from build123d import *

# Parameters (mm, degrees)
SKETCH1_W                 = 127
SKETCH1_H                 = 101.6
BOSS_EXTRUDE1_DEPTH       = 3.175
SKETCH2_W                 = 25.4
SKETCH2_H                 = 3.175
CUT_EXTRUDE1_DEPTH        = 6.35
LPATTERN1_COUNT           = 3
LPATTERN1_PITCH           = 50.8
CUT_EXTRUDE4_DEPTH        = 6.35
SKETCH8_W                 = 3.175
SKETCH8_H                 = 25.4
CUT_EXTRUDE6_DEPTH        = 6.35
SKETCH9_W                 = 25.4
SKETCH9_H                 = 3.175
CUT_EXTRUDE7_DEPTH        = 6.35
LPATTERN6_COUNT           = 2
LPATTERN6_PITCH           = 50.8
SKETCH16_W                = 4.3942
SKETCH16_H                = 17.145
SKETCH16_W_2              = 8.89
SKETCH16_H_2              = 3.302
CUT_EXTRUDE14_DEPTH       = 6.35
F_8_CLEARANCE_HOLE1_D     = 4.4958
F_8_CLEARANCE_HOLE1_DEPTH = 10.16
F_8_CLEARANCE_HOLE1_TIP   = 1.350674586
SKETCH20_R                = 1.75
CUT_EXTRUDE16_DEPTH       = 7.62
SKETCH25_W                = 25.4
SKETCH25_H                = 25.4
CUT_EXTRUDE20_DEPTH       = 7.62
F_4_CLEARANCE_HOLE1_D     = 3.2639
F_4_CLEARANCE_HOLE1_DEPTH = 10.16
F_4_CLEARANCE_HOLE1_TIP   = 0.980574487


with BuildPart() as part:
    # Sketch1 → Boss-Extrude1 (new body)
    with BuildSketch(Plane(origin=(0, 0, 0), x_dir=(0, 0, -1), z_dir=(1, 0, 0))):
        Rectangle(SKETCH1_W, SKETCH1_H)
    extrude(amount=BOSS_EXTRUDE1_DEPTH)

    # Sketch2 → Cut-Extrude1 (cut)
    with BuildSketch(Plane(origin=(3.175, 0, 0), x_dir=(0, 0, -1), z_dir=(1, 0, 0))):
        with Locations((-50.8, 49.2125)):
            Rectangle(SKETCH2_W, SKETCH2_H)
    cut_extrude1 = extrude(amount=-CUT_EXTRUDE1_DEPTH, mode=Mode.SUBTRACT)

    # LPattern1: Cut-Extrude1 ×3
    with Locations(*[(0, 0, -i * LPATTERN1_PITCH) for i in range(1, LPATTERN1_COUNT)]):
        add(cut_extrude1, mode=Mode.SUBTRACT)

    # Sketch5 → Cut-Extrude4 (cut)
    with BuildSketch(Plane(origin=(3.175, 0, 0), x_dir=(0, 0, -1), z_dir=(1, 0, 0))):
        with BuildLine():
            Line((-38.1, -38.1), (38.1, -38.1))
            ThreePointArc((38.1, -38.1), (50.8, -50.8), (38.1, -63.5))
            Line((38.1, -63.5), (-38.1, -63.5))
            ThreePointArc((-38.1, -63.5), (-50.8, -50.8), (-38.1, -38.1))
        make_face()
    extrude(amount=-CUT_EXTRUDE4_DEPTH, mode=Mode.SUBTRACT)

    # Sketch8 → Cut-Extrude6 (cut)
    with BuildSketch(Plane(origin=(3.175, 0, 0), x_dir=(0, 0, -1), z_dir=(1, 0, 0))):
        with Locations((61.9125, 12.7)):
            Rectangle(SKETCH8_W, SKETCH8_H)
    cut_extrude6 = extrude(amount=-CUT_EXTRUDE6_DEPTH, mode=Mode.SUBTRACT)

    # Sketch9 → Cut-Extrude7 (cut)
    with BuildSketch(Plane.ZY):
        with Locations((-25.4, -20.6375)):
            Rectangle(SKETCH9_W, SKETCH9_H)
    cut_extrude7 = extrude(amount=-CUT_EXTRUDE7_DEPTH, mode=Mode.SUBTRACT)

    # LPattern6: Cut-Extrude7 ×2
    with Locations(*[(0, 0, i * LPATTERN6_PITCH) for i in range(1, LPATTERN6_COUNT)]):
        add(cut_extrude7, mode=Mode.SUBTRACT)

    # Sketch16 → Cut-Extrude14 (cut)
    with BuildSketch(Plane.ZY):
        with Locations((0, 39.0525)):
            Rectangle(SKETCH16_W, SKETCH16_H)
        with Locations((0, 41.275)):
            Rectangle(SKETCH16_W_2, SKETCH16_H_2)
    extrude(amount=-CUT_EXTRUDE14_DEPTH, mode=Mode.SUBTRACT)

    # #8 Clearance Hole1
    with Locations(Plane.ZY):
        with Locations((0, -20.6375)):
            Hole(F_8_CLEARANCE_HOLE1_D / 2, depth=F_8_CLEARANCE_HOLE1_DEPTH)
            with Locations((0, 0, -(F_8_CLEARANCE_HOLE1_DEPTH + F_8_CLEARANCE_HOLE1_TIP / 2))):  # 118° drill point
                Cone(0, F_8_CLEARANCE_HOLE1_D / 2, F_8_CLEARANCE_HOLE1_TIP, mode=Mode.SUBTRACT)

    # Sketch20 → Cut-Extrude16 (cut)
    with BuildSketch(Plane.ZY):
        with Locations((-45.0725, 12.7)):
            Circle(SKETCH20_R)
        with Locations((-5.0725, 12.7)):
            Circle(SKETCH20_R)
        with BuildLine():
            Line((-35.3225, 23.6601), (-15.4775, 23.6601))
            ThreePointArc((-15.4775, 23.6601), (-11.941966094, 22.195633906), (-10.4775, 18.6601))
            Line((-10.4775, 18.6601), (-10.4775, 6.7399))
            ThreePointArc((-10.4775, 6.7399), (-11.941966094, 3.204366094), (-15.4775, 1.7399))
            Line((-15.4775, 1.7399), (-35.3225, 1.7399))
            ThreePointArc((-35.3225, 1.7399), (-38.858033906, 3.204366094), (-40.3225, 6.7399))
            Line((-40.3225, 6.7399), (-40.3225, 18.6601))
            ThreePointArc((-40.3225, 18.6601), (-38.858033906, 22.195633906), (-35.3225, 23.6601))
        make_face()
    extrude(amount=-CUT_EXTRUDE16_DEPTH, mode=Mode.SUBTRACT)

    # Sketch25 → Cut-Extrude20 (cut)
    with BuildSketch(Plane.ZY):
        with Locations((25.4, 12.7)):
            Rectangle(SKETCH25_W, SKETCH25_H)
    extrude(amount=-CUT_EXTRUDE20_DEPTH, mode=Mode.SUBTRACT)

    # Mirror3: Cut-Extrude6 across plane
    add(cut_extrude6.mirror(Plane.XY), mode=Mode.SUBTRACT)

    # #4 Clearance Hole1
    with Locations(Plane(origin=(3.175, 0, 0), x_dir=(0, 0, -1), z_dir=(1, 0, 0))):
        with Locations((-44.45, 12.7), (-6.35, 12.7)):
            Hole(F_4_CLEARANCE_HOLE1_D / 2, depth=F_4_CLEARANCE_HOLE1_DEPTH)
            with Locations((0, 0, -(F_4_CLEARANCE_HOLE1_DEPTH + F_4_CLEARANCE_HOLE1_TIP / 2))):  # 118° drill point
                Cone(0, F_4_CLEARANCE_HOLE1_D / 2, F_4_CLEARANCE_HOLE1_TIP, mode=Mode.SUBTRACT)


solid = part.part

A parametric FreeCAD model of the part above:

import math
import FreeCAD as App
import Part
import Sketcher

V = App.Vector
Q = App.Units.Quantity

doc = App.newDocument("Part")
body = doc.addObject("PartDesign::Body", "Body")

sketch1 = doc.addObject("Sketcher::SketchObject", "Sketch")
body.addObject(sketch1)
sketch1.AttachmentSupport = (doc.YZ_Plane, [""])
sketch1.MapMode = "FlatFace"
sketch1.addGeometry(Part.LineSegment(V(51, 64, 0), V(-51, 64, 0)), False)
sketch1.addGeometry(Part.LineSegment(V(-51, 64, 0), V(-51, -64, 0)), False)
sketch1.addGeometry(Part.LineSegment(V(-51, -64, 0), V(51, -64, 0)), False)
sketch1.addGeometry(Part.LineSegment(V(51, -64, 0), V(51, 64, 0)), False)
sketch1.addConstraint(Sketcher.Constraint("Coincident", 0, 2, 1, 1))
sketch1.addConstraint(Sketcher.Constraint("Coincident", 1, 2, 2, 1))
sketch1.addConstraint(Sketcher.Constraint("Coincident", 2, 2, 3, 1))
sketch1.addConstraint(Sketcher.Constraint("Coincident", 3, 2, 0, 1))
sketch1.addConstraint(Sketcher.Constraint("Horizontal", 0))
sketch1.addConstraint(Sketcher.Constraint("Vertical", 1))
sketch1.addConstraint(Sketcher.Constraint("Horizontal", 2))
sketch1.addConstraint(Sketcher.Constraint("Vertical", 3))
sketch1.addConstraint(Sketcher.Constraint("Symmetric", 0, 2, 2, 2, -1, 1))
sketch1.addConstraint(Sketcher.Constraint("DistanceX", 0, 2, 0, 1, Q("4 in")))
sketch1.addConstraint(Sketcher.Constraint("DistanceY", 1, 2, 1, 1, Q("5 in")))
pad1 = doc.addObject("PartDesign::Pad", "Pad")
body.addObject(pad1)
pad1.Profile = sketch1
pad1.Length = Q("0.125 in")

sketch2 = doc.addObject("Sketcher::SketchObject", "Sketch001")
body.addObject(sketch2)
sketch2.AttachmentSupport = (doc.YZ_Plane, [""])
sketch2.MapMode = "FlatFace"
sketch2.AttachmentOffset = App.Placement(V(0, 0, 0.125 * 25.4), App.Rotation())
sketch2.addGeometry(Part.LineSegment(V(50.8, 63.5, 0), V(47.6, 63.5, 0)), False)
sketch2.addGeometry(Part.LineSegment(V(47.6, 63.5, 0), V(47.6, 38.1, 0)), False)
sketch2.addGeometry(Part.LineSegment(V(47.6, 38.1, 0), V(50.8, 38.1, 0)), False)
sketch2.addGeometry(Part.LineSegment(V(50.8, 38.1, 0), V(50.8, 63.5, 0)), False)
sketch2.addConstraint(Sketcher.Constraint("Coincident", 0, 2, 1, 1))
sketch2.addConstraint(Sketcher.Constraint("Coincident", 1, 2, 2, 1))
sketch2.addConstraint(Sketcher.Constraint("Coincident", 2, 2, 3, 1))
sketch2.addConstraint(Sketcher.Constraint("Coincident", 3, 2, 0, 1))
sketch2.addConstraint(Sketcher.Constraint("Horizontal", 0))
sketch2.addConstraint(Sketcher.Constraint("Vertical", 1))
sketch2.addConstraint(Sketcher.Constraint("Horizontal", 2))
sketch2.addConstraint(Sketcher.Constraint("Vertical", 3))
sketch2.addConstraint(Sketcher.Constraint("DistanceY", 1, 2, 1, 1, Q("1 in")))
sketch2.addConstraint(Sketcher.Constraint("DistanceX", -1, 1, 2, 2, Q("2 in")))
sketch2.addConstraint(Sketcher.Constraint("DistanceY", -1, 1, 0, 2, Q("2.5 in")))
sketch2.addConstraint(Sketcher.Constraint("DistanceX", 0, 2, 0, 1, Q("0.125 in")))
pocket1 = doc.addObject("PartDesign::Pocket", "Pocket")
body.addObject(pocket1)
pocket1.Profile = sketch2
pocket1.Length = Q("0.25 in")
doc.recompute()

linearpattern = doc.addObject("PartDesign::LinearPattern", "LinearPattern")
body.addObject(linearpattern)
linearpattern.Originals = [pocket1]
linearpattern.Direction = (doc.Z_Axis, [""])
linearpattern.Mode = "offset"
linearpattern.Offset = Q("2 in")
linearpattern.Occurrences = 3
linearpattern.Reversed = True
body.Tip = linearpattern

sketch3 = doc.addObject("Sketcher::SketchObject", "Sketch002")
body.addObject(sketch3)
sketch3.AttachmentSupport = (doc.YZ_Plane, [""])
sketch3.MapMode = "FlatFace"
sketch3.AttachmentOffset = App.Placement(V(0, 0, 0.125 * 25.4), App.Rotation())
sketch3.addGeometry(Part.LineSegment(V(-38, -38, 0), V(-38, 38, 0)), False)
sketch3.addGeometry(Part.ArcOfCircle(Part.Circle(V(-51, 38, 0), V(0, 0, 1), 13), math.radians(0), math.radians(180)), False)
sketch3.addGeometry(Part.LineSegment(V(-64, 38, 0), V(-64, -38, 0)), False)
sketch3.addGeometry(Part.ArcOfCircle(Part.Circle(V(-51, -38, 0), V(0, 0, 1), 13), math.radians(180), math.radians(360)), False)
sketch3.addConstraint(Sketcher.Constraint("Tangent", 0, 2, 1, 1))
sketch3.addConstraint(Sketcher.Constraint("Tangent", 1, 2, 2, 1))
sketch3.addConstraint(Sketcher.Constraint("Tangent", 2, 2, 3, 1))
sketch3.addConstraint(Sketcher.Constraint("Tangent", 3, 2, 0, 1))
sketch3.addConstraint(Sketcher.Constraint("Vertical", 0))
sketch3.addConstraint(Sketcher.Constraint("Vertical", 2))
sketch3.addConstraint(Sketcher.Constraint("Radius", 1, Q("0.5 in")))
sketch3.addConstraint(Sketcher.Constraint("DistanceY", 0, 1, 0, 2, Q("3 in")))
sketch3.addConstraint(Sketcher.Constraint("DistanceX", 1, 3, -1, 1, Q("2 in")))
sketch3.addConstraint(Sketcher.Constraint("DistanceY", -1, 1, 1, 3, Q("1.5 in")))
pocket2 = doc.addObject("PartDesign::Pocket", "Pocket001")
body.addObject(pocket2)
pocket2.Profile = sketch3
pocket2.Length = Q("0.25 in")

sketch4 = doc.addObject("Sketcher::SketchObject", "Sketch003")
body.addObject(sketch4)
sketch4.AttachmentSupport = (doc.YZ_Plane, [""])
sketch4.MapMode = "FlatFace"
sketch4.AttachmentOffset = App.Placement(V(0, 0, 0.125 * 25.4), App.Rotation())
sketch4.addGeometry(Part.LineSegment(V(25.4, -60.3, 0), V(0, -60.3, 0)), False)
sketch4.addGeometry(Part.LineSegment(V(0, -60.3, 0), V(0, -63.5, 0)), False)
sketch4.addGeometry(Part.LineSegment(V(0, -63.5, 0), V(25.4, -63.5, 0)), False)
sketch4.addGeometry(Part.LineSegment(V(25.4, -63.5, 0), V(25.4, -60.3, 0)), False)
sketch4.addConstraint(Sketcher.Constraint("Coincident", 0, 2, 1, 1))
sketch4.addConstraint(Sketcher.Constraint("Coincident", 1, 2, 2, 1))
sketch4.addConstraint(Sketcher.Constraint("Coincident", 2, 2, 3, 1))
sketch4.addConstraint(Sketcher.Constraint("Coincident", 3, 2, 0, 1))
sketch4.addConstraint(Sketcher.Constraint("Horizontal", 0))
sketch4.addConstraint(Sketcher.Constraint("Vertical", 1))
sketch4.addConstraint(Sketcher.Constraint("Horizontal", 2))
sketch4.addConstraint(Sketcher.Constraint("Vertical", 3))
sketch4.addConstraint(Sketcher.Constraint("PointOnObject", 0, 2, -2))
sketch4.addConstraint(Sketcher.Constraint("DistanceX", 0, 2, 0, 1, Q("1 in")))
sketch4.addConstraint(Sketcher.Constraint("DistanceY", 1, 2, -1, 1, Q("2.5 in")))
sketch4.addConstraint(Sketcher.Constraint("DistanceY", 1, 2, 1, 1, Q("0.125 in")))
pocket3 = doc.addObject("PartDesign::Pocket", "Pocket002")
body.addObject(pocket3)
pocket3.Profile = sketch4
pocket3.Length = Q("0.25 in")

sketch5 = doc.addObject("Sketcher::SketchObject", "Sketch004")
body.addObject(sketch5)
sketch5.AttachmentSupport = (doc.YZ_Plane, [""])
sketch5.MapMode = "FlatFace"
sketch5.addGeometry(Part.LineSegment(V(-19.1, -38.1, 0), V(-22.2, -38.1, 0)), False)
sketch5.addGeometry(Part.LineSegment(V(-22.2, -38.1, 0), V(-22.2, -12.7, 0)), False)
sketch5.addGeometry(Part.LineSegment(V(-22.2, -12.7, 0), V(-19.1, -12.7, 0)), False)
sketch5.addGeometry(Part.LineSegment(V(-19.1, -12.7, 0), V(-19.1, -38.1, 0)), False)
sketch5.addConstraint(Sketcher.Constraint("Coincident", 0, 2, 1, 1))
sketch5.addConstraint(Sketcher.Constraint("Coincident", 1, 2, 2, 1))
sketch5.addConstraint(Sketcher.Constraint("Coincident", 2, 2, 3, 1))
sketch5.addConstraint(Sketcher.Constraint("Coincident", 3, 2, 0, 1))
sketch5.addConstraint(Sketcher.Constraint("Horizontal", 0))
sketch5.addConstraint(Sketcher.Constraint("Vertical", 1))
sketch5.addConstraint(Sketcher.Constraint("Horizontal", 2))
sketch5.addConstraint(Sketcher.Constraint("Vertical", 3))
sketch5.addConstraint(Sketcher.Constraint("DistanceY", 1, 1, 1, 2, Q("1 in")))
sketch5.addConstraint(Sketcher.Constraint("DistanceY", 0, 2, -1, 1, Q("1.5 in")))
sketch5.addConstraint(Sketcher.Constraint("DistanceX", 0, 2, 0, 1, Q("0.125 in")))
sketch5.addConstraint(Sketcher.Constraint("DistanceX", 2, 2, -1, 1, Q("0.75 in")))
pocket4 = doc.addObject("PartDesign::Pocket", "Pocket003")
body.addObject(pocket4)
pocket4.Profile = sketch5
pocket4.Length = Q("0.25 in")
pocket4.Reversed = True
doc.recompute()

linearpattern2 = doc.addObject("PartDesign::LinearPattern", "LinearPattern001")
body.addObject(linearpattern2)
linearpattern2.Originals = [pocket4]
linearpattern2.Direction = (doc.Z_Axis, [""])
linearpattern2.Mode = "offset"
linearpattern2.Offset = Q("2 in")
linearpattern2.Occurrences = 2
body.Tip = linearpattern2

sketch6 = doc.addObject("Sketcher::SketchObject", "Sketch005")
body.addObject(sketch6)
sketch6.AttachmentSupport = (doc.YZ_Plane, [""])
sketch6.MapMode = "FlatFace"
sketch6.addGeometry(Part.LineSegment(V(39.6, -2.2, 0), V(30.5, -2.2, 0)), False)
sketch6.addGeometry(Part.LineSegment(V(30.5, -2.2, 0), V(30.5, 2.2, 0)), False)
sketch6.addGeometry(Part.LineSegment(V(30.5, 2.2, 0), V(39.6, 2.2, 0)), False)
sketch6.addGeometry(Part.LineSegment(V(39.6, 2.2, 0), V(39.6, 4.4, 0)), False)
sketch6.addGeometry(Part.LineSegment(V(39.6, 4.4, 0), V(42.9, 4.4, 0)), False)
sketch6.addGeometry(Part.LineSegment(V(42.9, 4.4, 0), V(42.9, 2.2, 0)), False)
sketch6.addGeometry(Part.LineSegment(V(42.9, 2.2, 0), V(47.6, 2.2, 0)), False)
sketch6.addGeometry(Part.LineSegment(V(47.6, 2.2, 0), V(47.6, -2.2, 0)), False)
sketch6.addGeometry(Part.LineSegment(V(47.6, -2.2, 0), V(42.9, -2.2, 0)), False)
sketch6.addGeometry(Part.LineSegment(V(42.9, -2.2, 0), V(42.9, -4.4, 0)), False)
sketch6.addGeometry(Part.LineSegment(V(42.9, -4.4, 0), V(39.6, -4.4, 0)), False)
sketch6.addGeometry(Part.LineSegment(V(39.6, -4.4, 0), V(39.6, -2.2, 0)), False)
sketch6.addConstraint(Sketcher.Constraint("Coincident", 0, 2, 1, 1))
sketch6.addConstraint(Sketcher.Constraint("Coincident", 1, 2, 2, 1))
sketch6.addConstraint(Sketcher.Constraint("Coincident", 2, 2, 3, 1))
sketch6.addConstraint(Sketcher.Constraint("Coincident", 3, 2, 4, 1))
sketch6.addConstraint(Sketcher.Constraint("Coincident", 4, 2, 5, 1))
sketch6.addConstraint(Sketcher.Constraint("Coincident", 5, 2, 6, 1))
sketch6.addConstraint(Sketcher.Constraint("Coincident", 6, 2, 7, 1))
sketch6.addConstraint(Sketcher.Constraint("Coincident", 7, 2, 8, 1))
sketch6.addConstraint(Sketcher.Constraint("Coincident", 8, 2, 9, 1))
sketch6.addConstraint(Sketcher.Constraint("Coincident", 9, 2, 10, 1))
sketch6.addConstraint(Sketcher.Constraint("Coincident", 10, 2, 11, 1))
sketch6.addConstraint(Sketcher.Constraint("Coincident", 11, 2, 0, 1))
sketch6.addConstraint(Sketcher.Constraint("Horizontal", 0))
sketch6.addConstraint(Sketcher.Constraint("Vertical", 1))
sketch6.addConstraint(Sketcher.Constraint("Horizontal", 2))
sketch6.addConstraint(Sketcher.Constraint("Vertical", 3))
sketch6.addConstraint(Sketcher.Constraint("Horizontal", 4))
sketch6.addConstraint(Sketcher.Constraint("Vertical", 5))
sketch6.addConstraint(Sketcher.Constraint("Horizontal", 6))
sketch6.addConstraint(Sketcher.Constraint("Vertical", 7))
sketch6.addConstraint(Sketcher.Constraint("Horizontal", 8))
sketch6.addConstraint(Sketcher.Constraint("Vertical", 9))
sketch6.addConstraint(Sketcher.Constraint("Horizontal", 10))
sketch6.addConstraint(Sketcher.Constraint("Vertical", 11))
sketch6.addConstraint(Sketcher.Constraint("Symmetric", 5, 2, 8, 2, -1))
sketch6.addConstraint(Sketcher.Constraint("Symmetric", 3, 2, 10, 2, -1))
sketch6.addConstraint(Sketcher.Constraint("Horizontal", 2, 2, 5, 2))
sketch6.addConstraint(Sketcher.Constraint("Horizontal", 0, 2, 7, 2))
sketch6.addConstraint(Sketcher.Constraint("DistanceX", 0, 2, 0, 1, Q("0.36 in")))
sketch6.addConstraint(Sketcher.Constraint("DistanceX", 4, 1, 4, 2, Q("0.13 in")))
sketch6.addConstraint(Sketcher.Constraint("DistanceX", -1, 1, 0, 2, Q("1.2 in")))
sketch6.addConstraint(Sketcher.Constraint("DistanceX", 6, 1, 6, 2, Q("0.185 in")))
sketch6.addConstraint(Sketcher.Constraint("DistanceY", 1, 1, 1, 2, Q("0.173 in")))
sketch6.addConstraint(Sketcher.Constraint("DistanceY", 3, 1, 3, 2, Q("0.0885 in")))
pocket5 = doc.addObject("PartDesign::Pocket", "Pocket004")
body.addObject(pocket5)
pocket5.Profile = sketch6
pocket5.Length = Q("0.25 in")
pocket5.Reversed = True

sketch7 = doc.addObject("Sketcher::SketchObject", "Sketch006")
body.addObject(sketch7)
sketch7.AttachmentSupport = (doc.YZ_Plane, [""])
sketch7.MapMode = "FlatFace"
sketch7.addGeometry(Part.Circle(V(-20.6, 0, 0), V(0, 0, 1), 2.2), False)
sketch7.addConstraint(Sketcher.Constraint("PointOnObject", 0, 3, -1))
sketch7.addConstraint(Sketcher.Constraint("Diameter", 0, Q("0.177 in")))
sketch7.addConstraint(Sketcher.Constraint("DistanceX", 0, 3, -1, 1, Q("0.8125 in")))
doc.recompute()
hole = doc.addObject("PartDesign::Hole", "Hole")
body.addObject(hole)
hole.Profile = sketch7
hole.ThreadType = "None"
hole.Diameter = Q("0.177 in")
hole.DepthType = "Dimension"
hole.Depth = Q("0.4 in")
hole.DrillPoint = "Angled"
hole.DrillPointAngle = 118
hole.Reversed = True

sketch8 = doc.addObject("Sketcher::SketchObject", "Sketch007")
body.addObject(sketch8)
sketch8.AttachmentSupport = (doc.YZ_Plane, [""])
sketch8.MapMode = "FlatFace"
sketch8.addGeometry(Part.Circle(V(12.7, -45.1, 0), V(0, 0, 1), 1.8), False)
sketch8.addGeometry(Part.Circle(V(12.7, -5.1, 0), V(0, 0, 1), 1.8), False)
sketch8.addGeometry(Part.LineSegment(V(23.7, -15.5, 0), V(23.7, -35.3, 0)), False)
sketch8.addGeometry(Part.ArcOfCircle(Part.Circle(V(18.7, -35.3, 0), V(0, 0, 1), 5), math.radians(-90), math.radians(0)), False)
sketch8.addGeometry(Part.LineSegment(V(18.7, -40.3, 0), V(6.7, -40.3, 0)), False)
sketch8.addGeometry(Part.ArcOfCircle(Part.Circle(V(6.7, -35.3, 0), V(0, 0, 1), 5), math.radians(180), math.radians(270)), False)
sketch8.addGeometry(Part.LineSegment(V(1.7, -35.3, 0), V(1.7, -15.5, 0)), False)
sketch8.addGeometry(Part.ArcOfCircle(Part.Circle(V(6.7, -15.5, 0), V(0, 0, 1), 5), math.radians(90), math.radians(180)), False)
sketch8.addGeometry(Part.LineSegment(V(6.7, -10.5, 0), V(18.7, -10.5, 0)), False)
sketch8.addGeometry(Part.ArcOfCircle(Part.Circle(V(18.7, -15.5, 0), V(0, 0, 1), 5), math.radians(0), math.radians(90)), False)
sketch8.addConstraint(Sketcher.Constraint("Tangent", 2, 2, 3, 2))
sketch8.addConstraint(Sketcher.Constraint("Tangent", 3, 1, 4, 1))
sketch8.addConstraint(Sketcher.Constraint("Tangent", 4, 2, 5, 2))
sketch8.addConstraint(Sketcher.Constraint("Tangent", 5, 1, 6, 1))
sketch8.addConstraint(Sketcher.Constraint("Tangent", 6, 2, 7, 2))
sketch8.addConstraint(Sketcher.Constraint("Tangent", 7, 1, 8, 1))
sketch8.addConstraint(Sketcher.Constraint("Tangent", 8, 2, 9, 2))
sketch8.addConstraint(Sketcher.Constraint("Tangent", 9, 1, 2, 1))
sketch8.addConstraint(Sketcher.Constraint("Vertical", 2))
sketch8.addConstraint(Sketcher.Constraint("Horizontal", 4))
sketch8.addConstraint(Sketcher.Constraint("Vertical", 6))
sketch8.addConstraint(Sketcher.Constraint("Horizontal", 8))
sketch8.addConstraint(Sketcher.Constraint("Equal", 0, 1))
sketch8.addConstraint(Sketcher.Constraint("Equal", 3, 5))
sketch8.addConstraint(Sketcher.Constraint("Equal", 5, 7))
sketch8.addConstraint(Sketcher.Constraint("Equal", 7, 9))
sketch8.addConstraint(Sketcher.Constraint("Vertical", 0, 3, 1, 3))
sketch8.addConstraint(Sketcher.Constraint("DistanceX", -1, 1, 0, 3, Q("0.5 in")))
sketch8.addConstraint(Sketcher.Constraint("Diameter", 0, Q("3.5 mm")))
sketch8.addConstraint(Sketcher.Constraint("Radius", 3, Q("5 mm")))
sketch8.addConstraint(Sketcher.Constraint("DistanceX", 4, 2, 4, 1, Q("11.9202 mm")))
sketch8.addConstraint(Sketcher.Constraint("DistanceY", 2, 2, 2, 1, Q("19.845 mm")))
sketch8.addConstraint(Sketcher.Constraint("DistanceX", -1, 1, 2, 2, Q("0.9315 in")))
sketch8.addConstraint(Sketcher.Constraint("DistanceY", 3, 1, -1, 1, Q("1.5875 in")))
sketch8.addConstraint(Sketcher.Constraint("DistanceY", 0, 3, -1, 1, Q("45.0725 mm")))
sketch8.addConstraint(Sketcher.Constraint("DistanceY", 1, 3, -1, 1, Q("5.0725 mm")))
pocket6 = doc.addObject("PartDesign::Pocket", "Pocket005")
body.addObject(pocket6)
pocket6.Profile = sketch8
pocket6.Length = Q("0.3 in")
pocket6.Reversed = True

sketch9 = doc.addObject("Sketcher::SketchObject", "Sketch008")
body.addObject(sketch9)
sketch9.AttachmentSupport = (doc.YZ_Plane, [""])
sketch9.MapMode = "FlatFace"
sketch9.addGeometry(Part.LineSegment(V(25, 13, 0), V(0, 13, 0)), False)
sketch9.addGeometry(Part.LineSegment(V(0, 13, 0), V(0, 38, 0)), False)
sketch9.addGeometry(Part.LineSegment(V(0, 38, 0), V(25, 38, 0)), False)
sketch9.addGeometry(Part.LineSegment(V(25, 38, 0), V(25, 13, 0)), False)
sketch9.addConstraint(Sketcher.Constraint("Coincident", 0, 2, 1, 1))
sketch9.addConstraint(Sketcher.Constraint("Coincident", 1, 2, 2, 1))
sketch9.addConstraint(Sketcher.Constraint("Coincident", 2, 2, 3, 1))
sketch9.addConstraint(Sketcher.Constraint("Coincident", 3, 2, 0, 1))
sketch9.addConstraint(Sketcher.Constraint("Horizontal", 0))
sketch9.addConstraint(Sketcher.Constraint("Vertical", 1))
sketch9.addConstraint(Sketcher.Constraint("Horizontal", 2))
sketch9.addConstraint(Sketcher.Constraint("Vertical", 3))
sketch9.addConstraint(Sketcher.Constraint("PointOnObject", 0, 2, -2))
sketch9.addConstraint(Sketcher.Constraint("Equal", 2, 1))
sketch9.addConstraint(Sketcher.Constraint("DistanceX", 0, 2, 0, 1, Q("1 in")))
sketch9.addConstraint(Sketcher.Constraint("DistanceY", -1, 1, 0, 2, Q("0.5 in")))
pocket7 = doc.addObject("PartDesign::Pocket", "Pocket006")
body.addObject(pocket7)
pocket7.Profile = sketch9
pocket7.Length = Q("0.3 in")
pocket7.Reversed = True
doc.recompute()

mirrored = doc.addObject("PartDesign::Mirrored", "Mirrored")
body.addObject(mirrored)
mirrored.Originals = [pocket3]
mirrored.MirrorPlane = (doc.XY_Plane, [""])
body.Tip = mirrored

sketch10 = doc.addObject("Sketcher::SketchObject", "Sketch009")
body.addObject(sketch10)
sketch10.AttachmentSupport = (doc.YZ_Plane, [""])
sketch10.MapMode = "FlatFace"
sketch10.AttachmentOffset = App.Placement(V(0, 0, 0.125 * 25.4), App.Rotation())
sketch10.addGeometry(Part.Circle(V(12.7, 44.5, 0), V(0, 0, 1), 1.6), False)
sketch10.addGeometry(Part.Circle(V(12.7, 6.3, 0), V(0, 0, 1), 1.6), False)
sketch10.addConstraint(Sketcher.Constraint("Equal", 0, 1))
sketch10.addConstraint(Sketcher.Constraint("Vertical", 0, 3, 1, 3))
sketch10.addConstraint(Sketcher.Constraint("Diameter", 0, Q("0.1285 in")))
sketch10.addConstraint(Sketcher.Constraint("DistanceX", -1, 1, 0, 3, Q("0.5 in")))
sketch10.addConstraint(Sketcher.Constraint("DistanceY", 1, 3, 0, 3, Q("1.5 in")))
sketch10.addConstraint(Sketcher.Constraint("DistanceY", -1, 1, 0, 3, Q("1.75 in")))
doc.recompute()
hole2 = doc.addObject("PartDesign::Hole", "Hole001")
body.addObject(hole2)
hole2.Profile = sketch10
hole2.ThreadType = "None"
hole2.Diameter = Q("0.1285 in")
hole2.DepthType = "Dimension"
hole2.Depth = Q("0.4 in")
hole2.DrillPoint = "Angled"
hole2.DrillPointAngle = 118

doc.recompute()
